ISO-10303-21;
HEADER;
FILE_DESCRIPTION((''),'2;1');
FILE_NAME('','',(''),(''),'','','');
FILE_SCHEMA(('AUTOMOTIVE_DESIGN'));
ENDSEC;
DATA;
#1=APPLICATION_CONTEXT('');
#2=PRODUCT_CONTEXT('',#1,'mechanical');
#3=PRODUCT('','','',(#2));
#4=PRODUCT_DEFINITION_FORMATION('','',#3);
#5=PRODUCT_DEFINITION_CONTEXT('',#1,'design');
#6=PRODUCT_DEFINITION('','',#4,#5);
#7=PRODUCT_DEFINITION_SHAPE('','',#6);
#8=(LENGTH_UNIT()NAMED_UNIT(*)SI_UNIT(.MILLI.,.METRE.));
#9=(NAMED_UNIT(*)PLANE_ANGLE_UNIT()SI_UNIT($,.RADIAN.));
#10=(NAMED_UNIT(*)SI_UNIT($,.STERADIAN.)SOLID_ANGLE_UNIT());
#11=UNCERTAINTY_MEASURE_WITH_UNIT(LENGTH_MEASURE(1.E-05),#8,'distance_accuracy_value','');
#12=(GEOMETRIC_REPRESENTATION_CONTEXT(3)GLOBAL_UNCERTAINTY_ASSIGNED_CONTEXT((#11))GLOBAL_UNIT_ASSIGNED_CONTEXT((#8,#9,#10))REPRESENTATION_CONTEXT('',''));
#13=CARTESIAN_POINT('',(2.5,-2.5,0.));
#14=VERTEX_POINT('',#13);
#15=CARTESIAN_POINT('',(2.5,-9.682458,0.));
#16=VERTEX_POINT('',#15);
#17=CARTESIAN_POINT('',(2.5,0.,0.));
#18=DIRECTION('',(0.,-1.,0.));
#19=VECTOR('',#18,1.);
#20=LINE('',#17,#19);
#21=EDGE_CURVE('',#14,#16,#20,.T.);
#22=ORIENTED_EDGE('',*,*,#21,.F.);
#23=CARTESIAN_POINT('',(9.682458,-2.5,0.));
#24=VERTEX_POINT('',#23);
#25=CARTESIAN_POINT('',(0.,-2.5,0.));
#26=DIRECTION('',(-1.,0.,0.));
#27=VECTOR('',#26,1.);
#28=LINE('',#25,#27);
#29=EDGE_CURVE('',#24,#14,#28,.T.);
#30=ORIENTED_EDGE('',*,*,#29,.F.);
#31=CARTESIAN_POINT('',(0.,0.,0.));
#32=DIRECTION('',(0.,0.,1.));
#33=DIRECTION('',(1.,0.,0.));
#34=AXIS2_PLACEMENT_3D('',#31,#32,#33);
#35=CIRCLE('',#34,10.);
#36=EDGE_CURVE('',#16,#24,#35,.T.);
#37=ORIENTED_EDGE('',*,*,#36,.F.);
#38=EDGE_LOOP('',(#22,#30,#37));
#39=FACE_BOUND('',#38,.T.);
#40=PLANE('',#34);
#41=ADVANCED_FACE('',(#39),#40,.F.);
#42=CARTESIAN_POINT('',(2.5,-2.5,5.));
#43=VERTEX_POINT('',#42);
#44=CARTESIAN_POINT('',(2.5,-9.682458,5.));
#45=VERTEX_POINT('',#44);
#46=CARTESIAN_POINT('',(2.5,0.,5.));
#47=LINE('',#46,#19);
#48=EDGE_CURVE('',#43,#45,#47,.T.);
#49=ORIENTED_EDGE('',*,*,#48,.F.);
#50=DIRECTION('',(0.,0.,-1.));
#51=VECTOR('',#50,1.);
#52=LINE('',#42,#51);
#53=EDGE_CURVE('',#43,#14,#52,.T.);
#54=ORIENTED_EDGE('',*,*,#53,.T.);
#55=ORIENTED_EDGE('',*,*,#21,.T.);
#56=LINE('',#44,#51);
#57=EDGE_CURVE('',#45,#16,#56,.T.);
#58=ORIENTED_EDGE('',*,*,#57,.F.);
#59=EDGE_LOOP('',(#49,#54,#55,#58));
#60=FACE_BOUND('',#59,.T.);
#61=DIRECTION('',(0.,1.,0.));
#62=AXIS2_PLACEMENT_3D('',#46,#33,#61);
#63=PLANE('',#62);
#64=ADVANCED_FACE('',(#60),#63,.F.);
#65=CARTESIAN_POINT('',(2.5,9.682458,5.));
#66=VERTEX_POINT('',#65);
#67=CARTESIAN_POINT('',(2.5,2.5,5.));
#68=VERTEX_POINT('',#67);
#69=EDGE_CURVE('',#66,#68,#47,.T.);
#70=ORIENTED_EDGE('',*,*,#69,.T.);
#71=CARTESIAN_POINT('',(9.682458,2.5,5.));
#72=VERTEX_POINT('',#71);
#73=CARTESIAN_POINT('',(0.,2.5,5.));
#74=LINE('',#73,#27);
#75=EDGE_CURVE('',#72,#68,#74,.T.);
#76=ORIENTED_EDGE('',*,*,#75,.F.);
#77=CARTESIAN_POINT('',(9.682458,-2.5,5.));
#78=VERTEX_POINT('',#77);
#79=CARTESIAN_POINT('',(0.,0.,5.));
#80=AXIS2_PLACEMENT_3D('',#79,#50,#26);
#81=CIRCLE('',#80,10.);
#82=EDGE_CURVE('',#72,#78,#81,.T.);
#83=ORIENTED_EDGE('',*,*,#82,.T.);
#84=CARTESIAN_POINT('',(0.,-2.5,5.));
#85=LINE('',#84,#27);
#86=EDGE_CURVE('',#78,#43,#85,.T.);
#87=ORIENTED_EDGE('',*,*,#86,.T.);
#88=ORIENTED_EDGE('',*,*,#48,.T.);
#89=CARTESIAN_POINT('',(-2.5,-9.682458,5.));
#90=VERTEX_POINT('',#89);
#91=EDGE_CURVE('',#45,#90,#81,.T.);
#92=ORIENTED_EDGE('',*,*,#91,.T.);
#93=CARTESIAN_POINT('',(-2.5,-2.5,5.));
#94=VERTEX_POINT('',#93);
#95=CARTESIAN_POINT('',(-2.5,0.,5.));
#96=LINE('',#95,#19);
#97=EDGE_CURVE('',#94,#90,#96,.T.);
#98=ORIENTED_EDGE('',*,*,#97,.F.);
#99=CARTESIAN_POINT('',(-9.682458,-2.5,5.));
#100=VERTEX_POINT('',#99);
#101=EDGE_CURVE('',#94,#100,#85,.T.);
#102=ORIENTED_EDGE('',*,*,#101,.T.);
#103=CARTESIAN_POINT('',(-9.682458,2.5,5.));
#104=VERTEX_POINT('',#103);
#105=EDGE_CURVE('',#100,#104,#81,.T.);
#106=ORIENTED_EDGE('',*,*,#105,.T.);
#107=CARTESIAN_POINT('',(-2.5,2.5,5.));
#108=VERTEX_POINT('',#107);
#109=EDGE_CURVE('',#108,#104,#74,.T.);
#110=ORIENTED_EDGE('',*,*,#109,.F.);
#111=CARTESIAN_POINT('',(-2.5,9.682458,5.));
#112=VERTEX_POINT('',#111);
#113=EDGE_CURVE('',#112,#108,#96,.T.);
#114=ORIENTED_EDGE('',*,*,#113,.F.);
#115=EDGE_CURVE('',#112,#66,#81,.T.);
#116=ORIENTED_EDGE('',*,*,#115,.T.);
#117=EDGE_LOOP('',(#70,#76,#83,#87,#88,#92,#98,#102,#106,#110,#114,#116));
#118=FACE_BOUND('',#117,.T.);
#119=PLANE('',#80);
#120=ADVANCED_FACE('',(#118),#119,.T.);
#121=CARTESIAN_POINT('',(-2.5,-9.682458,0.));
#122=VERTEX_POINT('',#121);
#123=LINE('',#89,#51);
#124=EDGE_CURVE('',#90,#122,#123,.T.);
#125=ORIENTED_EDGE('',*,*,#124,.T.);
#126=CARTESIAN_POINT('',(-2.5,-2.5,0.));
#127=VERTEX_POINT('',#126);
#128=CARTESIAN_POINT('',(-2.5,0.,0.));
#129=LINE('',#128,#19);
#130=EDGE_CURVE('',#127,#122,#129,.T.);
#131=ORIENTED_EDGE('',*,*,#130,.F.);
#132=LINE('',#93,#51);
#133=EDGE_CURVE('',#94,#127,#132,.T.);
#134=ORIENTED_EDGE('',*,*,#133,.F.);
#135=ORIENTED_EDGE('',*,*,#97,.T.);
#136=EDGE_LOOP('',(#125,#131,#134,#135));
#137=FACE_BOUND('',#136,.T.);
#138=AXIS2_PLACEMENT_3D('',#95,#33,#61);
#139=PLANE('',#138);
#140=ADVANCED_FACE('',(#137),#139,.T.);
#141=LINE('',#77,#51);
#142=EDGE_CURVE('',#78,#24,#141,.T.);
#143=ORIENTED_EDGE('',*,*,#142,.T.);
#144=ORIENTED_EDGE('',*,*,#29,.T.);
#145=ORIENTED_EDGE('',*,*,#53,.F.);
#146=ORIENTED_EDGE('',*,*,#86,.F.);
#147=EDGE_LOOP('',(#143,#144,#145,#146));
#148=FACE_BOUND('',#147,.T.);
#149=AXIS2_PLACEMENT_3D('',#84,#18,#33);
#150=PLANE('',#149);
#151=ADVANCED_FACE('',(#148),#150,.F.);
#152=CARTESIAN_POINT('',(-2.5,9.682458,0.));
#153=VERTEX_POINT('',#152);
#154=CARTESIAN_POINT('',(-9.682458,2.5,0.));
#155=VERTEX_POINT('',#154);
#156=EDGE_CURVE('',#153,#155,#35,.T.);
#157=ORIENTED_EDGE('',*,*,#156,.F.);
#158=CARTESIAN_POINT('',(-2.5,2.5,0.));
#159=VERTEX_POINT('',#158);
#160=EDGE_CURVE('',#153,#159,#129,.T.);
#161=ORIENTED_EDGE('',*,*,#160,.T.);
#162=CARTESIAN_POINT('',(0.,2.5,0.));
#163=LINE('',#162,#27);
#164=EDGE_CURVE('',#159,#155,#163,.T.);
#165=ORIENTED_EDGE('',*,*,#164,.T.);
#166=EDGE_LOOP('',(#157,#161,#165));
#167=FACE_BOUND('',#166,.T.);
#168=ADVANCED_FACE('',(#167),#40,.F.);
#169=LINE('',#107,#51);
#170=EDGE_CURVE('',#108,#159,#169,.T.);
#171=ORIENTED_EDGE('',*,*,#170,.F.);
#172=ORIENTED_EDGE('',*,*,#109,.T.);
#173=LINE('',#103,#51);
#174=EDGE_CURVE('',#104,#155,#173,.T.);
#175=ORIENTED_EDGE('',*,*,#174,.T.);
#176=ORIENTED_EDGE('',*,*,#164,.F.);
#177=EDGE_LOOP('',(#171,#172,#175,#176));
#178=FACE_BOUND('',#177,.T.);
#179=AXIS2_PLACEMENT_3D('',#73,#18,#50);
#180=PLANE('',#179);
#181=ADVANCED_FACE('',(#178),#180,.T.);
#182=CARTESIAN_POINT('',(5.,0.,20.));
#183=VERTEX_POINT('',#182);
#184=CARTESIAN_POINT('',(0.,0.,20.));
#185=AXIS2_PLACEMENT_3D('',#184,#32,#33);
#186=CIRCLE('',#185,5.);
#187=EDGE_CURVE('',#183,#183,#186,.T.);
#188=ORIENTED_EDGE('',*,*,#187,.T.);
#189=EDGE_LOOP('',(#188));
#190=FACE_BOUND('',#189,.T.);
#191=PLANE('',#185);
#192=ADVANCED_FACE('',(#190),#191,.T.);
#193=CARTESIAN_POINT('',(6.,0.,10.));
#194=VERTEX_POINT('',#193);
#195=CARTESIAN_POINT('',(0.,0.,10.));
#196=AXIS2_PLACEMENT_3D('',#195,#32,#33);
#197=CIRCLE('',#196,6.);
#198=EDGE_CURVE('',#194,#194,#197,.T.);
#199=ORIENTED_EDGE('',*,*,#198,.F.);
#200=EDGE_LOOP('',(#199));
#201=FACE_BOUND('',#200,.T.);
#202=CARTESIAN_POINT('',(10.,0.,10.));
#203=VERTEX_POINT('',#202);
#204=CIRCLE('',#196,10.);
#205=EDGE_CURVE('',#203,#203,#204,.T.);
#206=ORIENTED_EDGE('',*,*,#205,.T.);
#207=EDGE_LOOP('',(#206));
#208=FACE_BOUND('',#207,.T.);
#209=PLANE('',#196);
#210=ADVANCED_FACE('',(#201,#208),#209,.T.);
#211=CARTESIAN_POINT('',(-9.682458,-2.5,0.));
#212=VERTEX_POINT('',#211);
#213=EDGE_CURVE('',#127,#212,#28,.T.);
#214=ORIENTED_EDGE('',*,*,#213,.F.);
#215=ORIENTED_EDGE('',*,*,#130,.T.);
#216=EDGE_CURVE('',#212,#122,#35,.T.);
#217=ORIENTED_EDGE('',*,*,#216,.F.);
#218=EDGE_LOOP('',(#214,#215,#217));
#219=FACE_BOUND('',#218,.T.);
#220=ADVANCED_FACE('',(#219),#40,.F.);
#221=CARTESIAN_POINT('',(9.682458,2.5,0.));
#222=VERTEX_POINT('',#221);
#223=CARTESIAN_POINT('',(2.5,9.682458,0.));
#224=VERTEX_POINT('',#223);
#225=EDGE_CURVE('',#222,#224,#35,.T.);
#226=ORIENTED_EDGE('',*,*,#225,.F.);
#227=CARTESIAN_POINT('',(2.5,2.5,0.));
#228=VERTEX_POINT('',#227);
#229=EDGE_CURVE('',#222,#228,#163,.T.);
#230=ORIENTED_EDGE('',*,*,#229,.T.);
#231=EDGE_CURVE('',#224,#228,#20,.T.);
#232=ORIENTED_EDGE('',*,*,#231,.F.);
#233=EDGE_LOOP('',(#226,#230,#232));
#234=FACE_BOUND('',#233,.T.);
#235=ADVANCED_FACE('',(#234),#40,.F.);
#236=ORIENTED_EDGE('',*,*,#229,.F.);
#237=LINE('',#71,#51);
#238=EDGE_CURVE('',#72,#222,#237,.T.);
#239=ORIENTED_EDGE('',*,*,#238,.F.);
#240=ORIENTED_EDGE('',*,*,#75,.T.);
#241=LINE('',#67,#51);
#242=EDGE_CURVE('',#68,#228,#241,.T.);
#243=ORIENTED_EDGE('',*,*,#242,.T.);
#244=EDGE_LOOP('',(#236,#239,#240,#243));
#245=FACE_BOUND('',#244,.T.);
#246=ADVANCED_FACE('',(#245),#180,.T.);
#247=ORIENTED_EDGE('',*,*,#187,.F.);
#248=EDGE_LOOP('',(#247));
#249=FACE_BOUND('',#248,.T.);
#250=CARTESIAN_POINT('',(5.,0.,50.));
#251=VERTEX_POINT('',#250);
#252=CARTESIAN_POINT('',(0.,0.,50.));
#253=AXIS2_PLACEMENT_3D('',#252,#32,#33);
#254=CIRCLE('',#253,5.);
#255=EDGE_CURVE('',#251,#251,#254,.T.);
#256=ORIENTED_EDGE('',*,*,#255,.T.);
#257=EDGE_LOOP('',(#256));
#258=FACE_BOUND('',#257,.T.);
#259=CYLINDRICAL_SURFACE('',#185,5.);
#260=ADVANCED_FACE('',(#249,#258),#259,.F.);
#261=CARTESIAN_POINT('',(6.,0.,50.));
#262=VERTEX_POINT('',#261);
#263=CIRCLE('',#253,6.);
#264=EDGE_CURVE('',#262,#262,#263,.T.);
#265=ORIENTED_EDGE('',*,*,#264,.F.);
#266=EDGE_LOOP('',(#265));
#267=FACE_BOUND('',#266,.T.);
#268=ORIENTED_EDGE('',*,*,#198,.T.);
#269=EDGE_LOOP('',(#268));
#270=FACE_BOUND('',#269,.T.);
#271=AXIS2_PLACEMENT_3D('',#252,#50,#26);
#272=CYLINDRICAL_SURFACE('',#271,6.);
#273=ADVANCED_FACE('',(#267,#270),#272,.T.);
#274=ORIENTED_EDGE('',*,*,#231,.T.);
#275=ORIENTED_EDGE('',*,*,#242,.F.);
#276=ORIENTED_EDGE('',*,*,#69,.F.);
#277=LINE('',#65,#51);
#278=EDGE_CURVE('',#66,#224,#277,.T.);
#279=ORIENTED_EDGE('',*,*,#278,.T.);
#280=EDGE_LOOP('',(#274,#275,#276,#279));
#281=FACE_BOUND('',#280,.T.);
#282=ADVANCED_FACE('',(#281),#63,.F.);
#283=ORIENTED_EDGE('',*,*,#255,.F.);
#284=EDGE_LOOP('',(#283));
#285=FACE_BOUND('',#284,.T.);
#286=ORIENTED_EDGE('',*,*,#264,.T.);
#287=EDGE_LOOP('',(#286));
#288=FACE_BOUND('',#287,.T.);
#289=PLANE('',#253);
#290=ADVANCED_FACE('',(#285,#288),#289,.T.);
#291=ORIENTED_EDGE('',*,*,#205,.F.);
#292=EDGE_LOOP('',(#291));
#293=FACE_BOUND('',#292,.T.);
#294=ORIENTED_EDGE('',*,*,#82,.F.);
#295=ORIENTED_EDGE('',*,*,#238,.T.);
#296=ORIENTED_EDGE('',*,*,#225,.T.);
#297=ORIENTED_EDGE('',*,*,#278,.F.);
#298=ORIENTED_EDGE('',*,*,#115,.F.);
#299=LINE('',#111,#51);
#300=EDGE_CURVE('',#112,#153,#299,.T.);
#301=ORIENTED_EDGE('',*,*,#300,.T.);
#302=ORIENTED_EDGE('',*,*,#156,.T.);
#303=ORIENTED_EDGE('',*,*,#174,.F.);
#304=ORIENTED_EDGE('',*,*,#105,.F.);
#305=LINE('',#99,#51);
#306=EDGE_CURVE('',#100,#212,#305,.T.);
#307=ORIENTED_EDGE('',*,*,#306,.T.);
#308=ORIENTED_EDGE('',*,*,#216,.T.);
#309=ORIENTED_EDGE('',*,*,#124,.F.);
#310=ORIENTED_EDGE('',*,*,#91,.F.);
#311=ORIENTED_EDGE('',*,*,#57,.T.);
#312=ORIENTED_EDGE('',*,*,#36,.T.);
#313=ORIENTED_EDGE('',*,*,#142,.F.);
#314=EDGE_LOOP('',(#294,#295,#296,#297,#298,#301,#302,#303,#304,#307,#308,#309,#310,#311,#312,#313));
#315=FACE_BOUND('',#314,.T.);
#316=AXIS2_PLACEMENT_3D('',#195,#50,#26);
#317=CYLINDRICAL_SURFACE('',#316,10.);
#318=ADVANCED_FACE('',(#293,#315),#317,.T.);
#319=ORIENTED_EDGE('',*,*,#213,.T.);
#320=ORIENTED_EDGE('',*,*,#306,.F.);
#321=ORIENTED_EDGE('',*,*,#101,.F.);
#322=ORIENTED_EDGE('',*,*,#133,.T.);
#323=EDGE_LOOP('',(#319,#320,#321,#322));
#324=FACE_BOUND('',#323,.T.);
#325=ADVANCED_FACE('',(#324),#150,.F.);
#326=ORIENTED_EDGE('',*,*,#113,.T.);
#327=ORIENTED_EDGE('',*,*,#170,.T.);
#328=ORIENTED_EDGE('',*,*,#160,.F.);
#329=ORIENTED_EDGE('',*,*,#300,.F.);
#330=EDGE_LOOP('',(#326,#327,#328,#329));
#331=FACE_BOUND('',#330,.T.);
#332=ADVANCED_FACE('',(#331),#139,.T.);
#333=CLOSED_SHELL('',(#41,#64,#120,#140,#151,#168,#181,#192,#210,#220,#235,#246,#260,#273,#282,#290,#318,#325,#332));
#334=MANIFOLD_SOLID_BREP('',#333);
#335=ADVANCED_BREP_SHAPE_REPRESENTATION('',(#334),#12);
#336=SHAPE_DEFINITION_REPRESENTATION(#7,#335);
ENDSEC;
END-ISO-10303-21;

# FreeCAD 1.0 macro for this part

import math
import FreeCAD as App
import Part
import Sketcher
from FreeCAD import Vector
Q = App.Units.Quantity

doc = App.newDocument("Part")
params = doc.addObject("Spreadsheet::Sheet", "Params")
for row, (alias, value) in enumerate([
    ("sketch1_diameter", "20 mm"),
    ("pad1_length", "10 mm"),
    ("sketch2_diameter", "12 mm"),
    ("pad2_length", "40 mm"),
    ("sketch3_diameter", "10 mm"),
    ("pocket1_length", "30 mm"),
    ("sketch4_radius", "10 mm"),
    ("pocket2_length", "5 mm"),
], start=1):
    params.set(f"A{row}", alias)
    params.set(f"B{row}", "=" + value)
    params.setAlias(f"B{row}", alias)

body = doc.addObject("PartDesign::Body", "Body")

sketch1 = doc.addObject("Sketcher::SketchObject", "Sketch")
body.addObject(sketch1)
sketch1.AttachmentSupport = (doc.XY_Plane, [""])
sketch1.MapMode = "FlatFace"
sketch1.addGeometry(Part.Circle(Vector(0, 0, 0), Vector(0, 0, 1), 10), False)
sketch1.addConstraint([
    Sketcher.Constraint("Coincident", 0, 3, -1, 1),
    Sketcher.Constraint("Diameter", 0, Q("20 mm")),
])
sketch1.setExpression("Constraints[1]", "Params.sketch1_diameter")
pad1 = doc.addObject("PartDesign::Pad", "Pad")
body.addObject(pad1)
pad1.Profile = sketch1
pad1.setExpression("Length", "Params.pad1_length")

sketch2 = doc.addObject("Sketcher::SketchObject", "Sketch001")
body.addObject(sketch2)
sketch2.AttachmentSupport = (doc.XY_Plane, [""])
sketch2.MapMode = "FlatFace"
sketch2.AttachmentOffset = App.Placement(Vector(0, 0, 10), App.Rotation())
sketch2.addGeometry(Part.Circle(Vector(0, 0, 0), Vector(0, 0, 1), 6), False)
sketch2.addConstraint([
    Sketcher.Constraint("Coincident", 0, 3, -1, 1),
    Sketcher.Constraint("Diameter", 0, Q("12 mm")),
])
sketch2.setExpression("Constraints[1]", "Params.sketch2_diameter")
pad2 = doc.addObject("PartDesign::Pad", "Pad001")
body.addObject(pad2)
pad2.Profile = sketch2
pad2.setExpression("Length", "Params.pad2_length")

sketch3 = doc.addObject("Sketcher::SketchObject", "Sketch002")
body.addObject(sketch3)
sketch3.AttachmentSupport = (doc.XY_Plane, [""])
sketch3.MapMode = "FlatFace"
sketch3.AttachmentOffset = App.Placement(Vector(0, 0, 50), App.Rotation())
sketch3.addGeometry(Part.Circle(Vector(0, 0, 0), Vector(0, 0, 1), 5), False)
sketch3.addConstraint([
    Sketcher.Constraint("Coincident", 0, 3, -1, 1),
    Sketcher.Constraint("Diameter", 0, Q("10 mm")),
])
sketch3.setExpression("Constraints[1]", "Params.sketch3_diameter")
pocket1 = doc.addObject("PartDesign::Pocket", "Pocket")
body.addObject(pocket1)
pocket1.Profile = sketch3
pocket1.setExpression("Length", "Params.pocket1_length")

sketch4 = doc.addObject("Sketcher::SketchObject", "Sketch003")
body.addObject(sketch4)
sketch4.AttachmentSupport = (doc.XY_Plane, [""])
sketch4.MapMode = "FlatFace"
sketch4.addGeometry([
    Part.LineSegment(Vector(2.5, 9.7, 0), Vector(2.5, 2.5, 0)),
    Part.LineSegment(Vector(2.5, 2.5, 0), Vector(9.7, 2.5, 0)),
    Part.ArcOfCircle(Part.Circle(Vector(0, 0, 0), Vector(0, 0, 1), 10), math.radians(0), math.radians(14.48)),
    Part.ArcOfCircle(Part.Circle(Vector(0, 0, 0), Vector(0, 0, 1), 10), math.radians(-14.48), math.radians(0)),
    Part.LineSegment(Vector(9.7, -2.5, 0), Vector(2.5, -2.5, 0)),
    Part.LineSegment(Vector(2.5, -2.5, 0), Vector(2.5, -9.7, 0)),
    Part.ArcOfCircle(Part.Circle(Vector(0, 0, 0), Vector(0, 0, 1), 10), math.radians(-90), math.radians(-75.52)),
    Part.ArcOfCircle(Part.Circle(Vector(0, 0, 0), Vector(0, 0, 1), 10), math.radians(-104.48), math.radians(-90)),
    Part.LineSegment(Vector(-2.5, -9.7, 0), Vector(-2.5, -2.5, 0)),
    Part.LineSegment(Vector(-2.5, -2.5, 0), Vector(-9.7, -2.5, 0)),
    Part.ArcOfCircle(Part.Circle(Vector(0, 0, 0), Vector(0, 0, 1), 10), math.radians(180), math.radians(194.48)),
    Part.ArcOfCircle(Part.Circle(Vector(0, 0, 0), Vector(0, 0, 1), 10), math.radians(165.52), math.radians(180)),
    Part.LineSegment(Vector(-9.7, 2.5, 0), Vector(-2.5, 2.5, 0)),
    Part.LineSegment(Vector(-2.5, 2.5, 0), Vector(-2.5, 9.7, 0)),
    Part.ArcOfCircle(Part.Circle(Vector(0, 0, 0), Vector(0, 0, 1), 10), math.radians(90), math.radians(104.48)),
    Part.ArcOfCircle(Part.Circle(Vector(0, 0, 0), Vector(0, 0, 1), 10), math.radians(75.52), math.radians(90)),
], False)
sketch4.addConstraint([
    Sketcher.Constraint("Coincident", 0, 2, 1, 1),
    Sketcher.Constraint("Coincident", 1, 2, 2, 2),
    Sketcher.Constraint("Tangent", 2, 1, 3, 2),
    Sketcher.Constraint("Coincident", 3, 1, 4, 1),
    Sketcher.Constraint("Coincident", 4, 2, 5, 1),
    Sketcher.Constraint("Coincident", 5, 2, 6, 2),
    Sketcher.Constraint("Tangent", 6, 1, 7, 2),
    Sketcher.Constraint("Coincident", 7, 1, 8, 1),
    Sketcher.Constraint("Coincident", 8, 2, 9, 1),
    Sketcher.Constraint("Coincident", 9, 2, 10, 2),
    Sketcher.Constraint("Tangent", 10, 1, 11, 2),
    Sketcher.Constraint("Coincident", 11, 1, 12, 1),
    Sketcher.Constraint("Coincident", 12, 2, 13, 1),
    Sketcher.Constraint("Coincident", 13, 2, 14, 2),
    Sketcher.Constraint("Tangent", 14, 1, 15, 2),
    Sketcher.Constraint("Coincident", 15, 1, 0, 1),
    Sketcher.Constraint("Vertical", 0),
    Sketcher.Constraint("Horizontal", 1),
    Sketcher.Constraint("Horizontal", 4),
    Sketcher.Constraint("Vertical", 5),
    Sketcher.Constraint("Vertical", 8),
    Sketcher.Constraint("Horizontal", 9),
    Sketcher.Constraint("Horizontal", 12),
    Sketcher.Constraint("Vertical", 13),
    Sketcher.Constraint("Coincident", 2, 3, -1, 1),
    Sketcher.Constraint("Coincident", 6, 3, -1, 1),
    Sketcher.Constraint("Coincident", 10, 3, -1, 1),
    Sketcher.Constraint("Coincident", 14, 3, -1, 1),
    Sketcher.Constraint("Equal", 2, 3),
    Sketcher.Constraint("Equal", 3, 6),
    Sketcher.Constraint("Equal", 6, 7),
    Sketcher.Constraint("Equal", 7, 10),
    Sketcher.Constraint("Equal", 10, 11),
    Sketcher.Constraint("Equal", 11, 14),
    Sketcher.Constraint("Equal", 14, 15),
    Sketcher.Constraint("Symmetric", 0, 2, 8, 2, -1, 1),
    Sketcher.Constraint("Symmetric", 4, 2, 12, 2, -1, 1),
    Sketcher.Constraint("Symmetric", 4, 2, 8, 2, -2),
    Sketcher.Constraint("PointOnObject", 2, 1, -1),
    Sketcher.Constraint("PointOnObject", 6, 1, -2),
    Sketcher.Constraint("PointOnObject", 10, 1, -1),
    Sketcher.Constraint("PointOnObject", 14, 1, -2),
    Sketcher.Constraint("Equal", 12, 0),
    Sketcher.Constraint("Radius", 2, Q("10 mm")),
    Sketcher.Constraint("DistanceY", 3, 1, 1, 2, Q("5 mm")),
])
sketch4.setExpression("Constraints[43]", "Params.sketch4_radius")
pocket2 = doc.addObject("PartDesign::Pocket", "Pocket001")
body.addObject(pocket2)
pocket2.Profile = sketch4
pocket2.setExpression("Length", "Params.pocket2_length")
pocket2.Reversed = True

doc.recompute()
